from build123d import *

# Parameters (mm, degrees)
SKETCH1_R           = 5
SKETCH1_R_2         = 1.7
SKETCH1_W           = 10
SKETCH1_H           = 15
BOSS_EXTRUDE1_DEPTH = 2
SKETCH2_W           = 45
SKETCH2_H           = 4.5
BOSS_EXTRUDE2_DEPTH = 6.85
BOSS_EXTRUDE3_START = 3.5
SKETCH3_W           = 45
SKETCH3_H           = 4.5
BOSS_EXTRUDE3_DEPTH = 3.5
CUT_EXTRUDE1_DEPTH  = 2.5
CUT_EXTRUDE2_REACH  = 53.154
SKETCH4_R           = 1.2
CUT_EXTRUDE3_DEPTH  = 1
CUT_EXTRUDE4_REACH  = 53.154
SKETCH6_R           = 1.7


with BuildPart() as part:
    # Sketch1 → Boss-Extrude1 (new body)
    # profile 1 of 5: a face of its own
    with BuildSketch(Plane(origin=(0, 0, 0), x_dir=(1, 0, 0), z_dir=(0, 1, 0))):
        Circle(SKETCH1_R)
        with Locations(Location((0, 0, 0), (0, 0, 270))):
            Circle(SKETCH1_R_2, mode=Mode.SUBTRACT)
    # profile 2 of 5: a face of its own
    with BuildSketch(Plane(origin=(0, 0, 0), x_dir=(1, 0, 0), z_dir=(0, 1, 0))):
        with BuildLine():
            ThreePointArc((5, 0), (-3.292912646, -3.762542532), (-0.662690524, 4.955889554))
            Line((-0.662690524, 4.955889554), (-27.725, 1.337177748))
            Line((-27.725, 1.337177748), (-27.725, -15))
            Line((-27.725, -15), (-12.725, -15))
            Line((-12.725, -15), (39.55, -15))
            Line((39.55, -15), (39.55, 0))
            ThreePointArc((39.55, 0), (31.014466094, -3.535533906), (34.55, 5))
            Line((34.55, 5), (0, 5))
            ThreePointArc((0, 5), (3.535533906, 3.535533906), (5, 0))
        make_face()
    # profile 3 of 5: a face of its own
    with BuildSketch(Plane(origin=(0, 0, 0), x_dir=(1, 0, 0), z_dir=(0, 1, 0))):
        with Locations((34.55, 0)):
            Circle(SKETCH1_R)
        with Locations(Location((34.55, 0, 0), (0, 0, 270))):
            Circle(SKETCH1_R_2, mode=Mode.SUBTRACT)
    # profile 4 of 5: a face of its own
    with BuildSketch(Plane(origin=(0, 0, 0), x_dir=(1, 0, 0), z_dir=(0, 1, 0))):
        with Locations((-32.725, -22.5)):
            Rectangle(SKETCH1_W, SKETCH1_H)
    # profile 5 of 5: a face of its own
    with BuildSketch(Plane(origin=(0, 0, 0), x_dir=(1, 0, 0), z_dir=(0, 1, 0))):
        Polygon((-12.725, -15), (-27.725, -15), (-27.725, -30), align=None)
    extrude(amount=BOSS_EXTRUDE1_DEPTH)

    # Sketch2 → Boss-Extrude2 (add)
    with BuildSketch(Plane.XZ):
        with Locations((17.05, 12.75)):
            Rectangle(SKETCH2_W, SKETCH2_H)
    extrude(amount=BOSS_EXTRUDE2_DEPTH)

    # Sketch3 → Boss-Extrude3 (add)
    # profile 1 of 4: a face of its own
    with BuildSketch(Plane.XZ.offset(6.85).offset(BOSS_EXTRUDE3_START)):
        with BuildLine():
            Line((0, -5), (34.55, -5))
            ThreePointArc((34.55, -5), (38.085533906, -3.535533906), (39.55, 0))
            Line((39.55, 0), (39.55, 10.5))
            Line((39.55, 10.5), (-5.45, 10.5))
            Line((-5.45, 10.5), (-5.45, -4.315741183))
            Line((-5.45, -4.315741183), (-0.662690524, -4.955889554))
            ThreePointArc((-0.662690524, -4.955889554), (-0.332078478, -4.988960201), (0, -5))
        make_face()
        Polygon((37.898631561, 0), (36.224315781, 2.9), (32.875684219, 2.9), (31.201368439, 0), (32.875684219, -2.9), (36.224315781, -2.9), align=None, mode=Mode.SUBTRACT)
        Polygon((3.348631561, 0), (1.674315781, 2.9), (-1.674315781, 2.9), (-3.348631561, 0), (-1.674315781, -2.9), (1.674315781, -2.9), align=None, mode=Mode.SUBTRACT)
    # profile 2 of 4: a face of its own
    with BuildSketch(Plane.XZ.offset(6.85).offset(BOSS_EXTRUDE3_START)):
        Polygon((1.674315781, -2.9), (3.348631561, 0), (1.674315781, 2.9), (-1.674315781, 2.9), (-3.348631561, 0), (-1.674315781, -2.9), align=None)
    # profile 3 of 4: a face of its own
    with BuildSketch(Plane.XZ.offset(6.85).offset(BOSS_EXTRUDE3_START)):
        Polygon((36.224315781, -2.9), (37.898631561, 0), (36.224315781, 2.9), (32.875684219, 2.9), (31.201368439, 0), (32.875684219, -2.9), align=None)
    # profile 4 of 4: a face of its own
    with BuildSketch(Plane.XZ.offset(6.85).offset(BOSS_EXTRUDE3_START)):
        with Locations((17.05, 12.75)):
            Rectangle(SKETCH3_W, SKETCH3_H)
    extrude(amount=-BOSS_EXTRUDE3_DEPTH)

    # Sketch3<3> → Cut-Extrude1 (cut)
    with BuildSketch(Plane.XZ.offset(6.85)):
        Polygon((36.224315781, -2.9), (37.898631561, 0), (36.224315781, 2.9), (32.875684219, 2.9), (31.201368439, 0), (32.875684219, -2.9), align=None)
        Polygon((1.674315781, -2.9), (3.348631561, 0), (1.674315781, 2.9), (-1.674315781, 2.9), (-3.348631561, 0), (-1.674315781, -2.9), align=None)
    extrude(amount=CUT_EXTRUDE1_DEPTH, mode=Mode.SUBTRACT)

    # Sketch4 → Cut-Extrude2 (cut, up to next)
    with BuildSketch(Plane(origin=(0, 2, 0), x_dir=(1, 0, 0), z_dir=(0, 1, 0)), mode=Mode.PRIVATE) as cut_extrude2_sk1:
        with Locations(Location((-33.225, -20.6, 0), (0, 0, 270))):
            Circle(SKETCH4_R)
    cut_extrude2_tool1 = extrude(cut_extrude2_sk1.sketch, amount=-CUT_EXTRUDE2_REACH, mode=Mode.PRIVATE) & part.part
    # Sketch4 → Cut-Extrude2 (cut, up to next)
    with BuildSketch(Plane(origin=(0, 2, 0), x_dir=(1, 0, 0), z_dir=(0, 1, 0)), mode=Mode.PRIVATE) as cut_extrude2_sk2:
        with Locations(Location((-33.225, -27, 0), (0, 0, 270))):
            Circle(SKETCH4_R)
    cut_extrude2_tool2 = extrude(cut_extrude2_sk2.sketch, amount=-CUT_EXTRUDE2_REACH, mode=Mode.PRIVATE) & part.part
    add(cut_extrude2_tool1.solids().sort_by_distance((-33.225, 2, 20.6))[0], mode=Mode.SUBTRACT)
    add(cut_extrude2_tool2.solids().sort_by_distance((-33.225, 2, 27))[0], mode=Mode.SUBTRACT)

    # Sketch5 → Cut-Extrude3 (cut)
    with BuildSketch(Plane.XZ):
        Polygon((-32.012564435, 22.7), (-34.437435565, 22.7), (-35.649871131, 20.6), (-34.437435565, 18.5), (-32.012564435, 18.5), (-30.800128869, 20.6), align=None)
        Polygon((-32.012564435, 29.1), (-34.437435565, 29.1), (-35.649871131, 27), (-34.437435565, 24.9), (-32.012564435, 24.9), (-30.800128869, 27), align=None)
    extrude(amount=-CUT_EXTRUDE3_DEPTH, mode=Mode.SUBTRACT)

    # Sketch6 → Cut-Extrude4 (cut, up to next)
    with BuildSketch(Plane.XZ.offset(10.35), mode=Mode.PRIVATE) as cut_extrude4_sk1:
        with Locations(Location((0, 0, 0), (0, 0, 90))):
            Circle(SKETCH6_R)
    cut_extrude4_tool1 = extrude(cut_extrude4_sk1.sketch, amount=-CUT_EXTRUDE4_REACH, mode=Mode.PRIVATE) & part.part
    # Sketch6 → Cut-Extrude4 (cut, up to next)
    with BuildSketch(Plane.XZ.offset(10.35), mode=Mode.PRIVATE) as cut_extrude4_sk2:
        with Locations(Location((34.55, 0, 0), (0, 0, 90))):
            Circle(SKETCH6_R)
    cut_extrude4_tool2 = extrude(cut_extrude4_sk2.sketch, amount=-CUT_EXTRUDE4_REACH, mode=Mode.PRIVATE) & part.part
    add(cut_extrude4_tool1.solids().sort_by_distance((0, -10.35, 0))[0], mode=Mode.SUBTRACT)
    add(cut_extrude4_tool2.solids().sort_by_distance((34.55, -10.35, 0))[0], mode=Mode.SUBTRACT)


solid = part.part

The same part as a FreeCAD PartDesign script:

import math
import FreeCAD as App
import Part
import Sketcher
Q = App.Units.Quantity


def add_polygon(sketch, points):
    """Adds a closed chain of lines whose ends are joined by coincident constraints."""
    first, n = sketch.GeometryCount, len(points)
    for a, b in zip(points, points[1:] + points[:1]):
        sketch.addGeometry(Part.LineSegment(App.Vector(*a, 0), App.Vector(*b, 0)), False)
    for i in range(n):
        sketch.addConstraint(Sketcher.Constraint("Coincident", first + i, 2, first + (i + 1) % n, 1))

doc = App.newDocument("Part")
body = doc.addObject("PartDesign::Body", "Body")

# Sketch on XZ plane
sketch1 = body.newObject("Sketcher::SketchObject", "Sketch")
sketch1.AttachmentSupport = (doc.getObject("XZ_Plane"), [""])
sketch1.MapMode = "FlatFace"
sketch1.addGeometry(Part.ArcOfCircle(Part.Circle(App.Vector(0, 0, 0), App.Vector(0, 0, 1), 5), math.radians(-97.62), math.radians(-90)), False)
sketch1.addGeometry(Part.LineSegment(App.Vector(-0.7, -5, 0), App.Vector(-27.7, -1.3, 0)), False)
sketch1.addGeometry(Part.LineSegment(App.Vector(-27.7, -1.3, 0), App.Vector(-27.7, 15, 0)), False)
sketch1.addGeometry(Part.LineSegment(App.Vector(-27.7, 15, 0), App.Vector(-37.7, 15, 0)), False)
sketch1.addGeometry(Part.LineSegment(App.Vector(-37.7, 15, 0), App.Vector(-37.7, 30, 0)), False)
sketch1.addGeometry(Part.LineSegment(App.Vector(-37.7, 30, 0), App.Vector(-27.7, 30, 0)), False)
sketch1.addGeometry(Part.LineSegment(App.Vector(-27.7, 30, 0), App.Vector(-12.7, 15, 0)), False)
sketch1.addGeometry(Part.LineSegment(App.Vector(-12.7, 15, 0), App.Vector(39.5, 15, 0)), False)
sketch1.addGeometry(Part.LineSegment(App.Vector(39.5, 15, 0), App.Vector(39.5, 0, 0)), False)
sketch1.addGeometry(Part.ArcOfCircle(Part.Circle(App.Vector(34.5, 0, 0), App.Vector(0, 0, 1), 5), math.radians(-90), math.radians(0)), False)
sketch1.addGeometry(Part.LineSegment(App.Vector(34.5, -5, 0), App.Vector(0, -5, 0)), False)
sketch1.addGeometry(Part.Circle(App.Vector(0, 0, 0), App.Vector(0, 0, 1), 1.7), False)
sketch1.addGeometry(Part.Circle(App.Vector(34.5, 0, 0), App.Vector(0, 0, 1), 1.7), False)
sketch1.addConstraint(Sketcher.Constraint("Tangent", 0, 1, 1, 1))
sketch1.addConstraint(Sketcher.Constraint("Coincident", 1, 2, 2, 1))
sketch1.addConstraint(Sketcher.Constraint("Coincident", 2, 2, 3, 1))
sketch1.addConstraint(Sketcher.Constraint("Coincident", 3, 2, 4, 1))
sketch1.addConstraint(Sketcher.Constraint("Coincident", 4, 2, 5, 1))
sketch1.addConstraint(Sketcher.Constraint("Coincident", 5, 2, 6, 1))
sketch1.addConstraint(Sketcher.Constraint("Coincident", 6, 2, 7, 1))
sketch1.addConstraint(Sketcher.Constraint("Coincident", 7, 2, 8, 1))
sketch1.addConstraint(Sketcher.Constraint("Tangent", 8, 2, 9, 2))
sketch1.addConstraint(Sketcher.Constraint("Tangent", 9, 1, 10, 1))
sketch1.addConstraint(Sketcher.Constraint("Tangent", 10, 2, 0, 2))
sketch1.addConstraint(Sketcher.Constraint("Vertical", 2))
sketch1.addConstraint(Sketcher.Constraint("Horizontal", 3))
sketch1.addConstraint(Sketcher.Constraint("Vertical", 4))
sketch1.addConstraint(Sketcher.Constraint("Horizontal", 5))
sketch1.addConstraint(Sketcher.Constraint("Horizontal", 7))
sketch1.addConstraint(Sketcher.Constraint("Vertical", 8))
sketch1.addConstraint(Sketcher.Constraint("Horizontal", 10))
sketch1.addConstraint(Sketcher.Constraint("Coincident", 0, 3, -1, 1))
sketch1.addConstraint(Sketcher.Constraint("Coincident", 11, 3, -1, 1))
sketch1.addConstraint(Sketcher.Constraint("Coincident", 12, 3, 9, 3))
sketch1.addConstraint(Sketcher.Constraint("Equal", 0, 9))
sketch1.addConstraint(Sketcher.Constraint("Equal", 11, 12))
sketch1.addConstraint(Sketcher.Constraint("Horizontal", 3, 2, 6, 2))
sketch1.addConstraint(Sketcher.Constraint("Vertical", 2, 2, 5, 2))
sketch1.addConstraint(Sketcher.Constraint("Equal", 4, 8))
sketch1.addConstraint(Sketcher.Constraint("Radius", 0, Q("5 mm")))
sketch1.addConstraint(Sketcher.Constraint("Diameter", 11, Q("3.4 mm")))
sketch1.addConstraint(Sketcher.Constraint("DistanceX", 3, 2, 3, 1, Q("10 mm")))
sketch1.addConstraint(Sketcher.Constraint("DistanceY", 4, 1, 4, 2, Q("15 mm")))
sketch1.addConstraint(Sketcher.Constraint("Angle", 6, Q("-45 deg")))
sketch1.addConstraint(Sketcher.Constraint("DistanceX", 10, 2, 10, 1, Q("34.55 mm")))
sketch1.addConstraint(Sketcher.Constraint("DistanceX", 7, 1, 7, 2, Q("52.275 mm")))
sketch1.addConstraint(Sketcher.Constraint("Distance", 1, Q("27.303181 mm")))
pad1 = body.newObject("PartDesign::Pad", "Pad")
pad1.Profile = sketch1
pad1.Length = 2
pad1.Reversed = True

# Sketch on XZ plane
sketch2 = body.newObject("Sketcher::SketchObject", "Sketch001")
sketch2.AttachmentSupport = (doc.getObject("XZ_Plane"), [""])
sketch2.MapMode = "FlatFace"
add_polygon(sketch2, [(-5.5, 15), (-5.5, 10.5), (39.5, 10.5), (39.5, 15)])  # lines 0-3
sketch2.addConstraint(Sketcher.Constraint("Vertical", 0))
sketch2.addConstraint(Sketcher.Constraint("Horizontal", 1))
sketch2.addConstraint(Sketcher.Constraint("Vertical", 2))
sketch2.addConstraint(Sketcher.Constraint("Horizontal", 3))
sketch2.addConstraint(Sketcher.Constraint("DistanceX", 1, 1, 1, 2, Q("45 mm")))
sketch2.addConstraint(Sketcher.Constraint("DistanceY", 0, 2, 0, 1, Q("4.5 mm")))
sketch2.addConstraint(Sketcher.Constraint("DistanceY", -1, 1, 2, 2, Q("15 mm")))
sketch2.addConstraint(Sketcher.Constraint("DistanceX", 0, 2, -1, 1, Q("5.45 mm")))
pad2 = body.newObject("PartDesign::Pad", "Pad001")
pad2.Profile = sketch2
pad2.Length = 6.85

# Sketch on XZ plane
sketch3 = body.newObject("Sketcher::SketchObject", "Sketch002")
sketch3.AttachmentSupport = (doc.getObject("XZ_Plane"), [""])
sketch3.MapMode = "FlatFace"
sketch3.AttachmentOffset = App.Placement(App.Vector(0, 0, 10.35), App.Rotation())
sketch3.addGeometry(Part.LineSegment(App.Vector(0, -5, 0), App.Vector(34.5, -5, 0)), False)
sketch3.addGeometry(Part.ArcOfCircle(Part.Circle(App.Vector(34.5, 0, 0), App.Vector(0, 0, 1), 5), math.radians(-90), math.radians(0)), False)
sketch3.addGeometry(Part.LineSegment(App.Vector(39.5, 0, 0), App.Vector(39.5, 15, 0)), False)
sketch3.addGeometry(Part.LineSegment(App.Vector(39.5, 15, 0), App.Vector(-5.5, 15, 0)), False)
sketch3.addGeometry(Part.LineSegment(App.Vector(-5.5, 15, 0), App.Vector(-5.5, -4.3, 0)), False)
sketch3.addGeometry(Part.LineSegment(App.Vector(-5.5, -4.3, 0), App.Vector(-0.7, -5, 0)), False)
sketch3.addGeometry(Part.ArcOfCircle(Part.Circle(App.Vector(0, 0, 0), App.Vector(0, 0, 1), 5), math.radians(-97.62), math.radians(-90)), False)
sketch3.addConstraint(Sketcher.Constraint("Tangent", 0, 2, 1, 1))
sketch3.addConstraint(Sketcher.Constraint("Tangent", 1, 2, 2, 1))
sketch3.addConstraint(Sketcher.Constraint("Coincident", 2, 2, 3, 1))
sketch3.addConstraint(Sketcher.Constraint("Coincident", 3, 2, 4, 1))
sketch3.addConstraint(Sketcher.Constraint("Coincident", 4, 2, 5, 1))
sketch3.addConstraint(Sketcher.Constraint("Tangent", 5, 2, 6, 1))
sketch3.addConstraint(Sketcher.Constraint("Tangent", 6, 2, 0, 1))
sketch3.addConstraint(Sketcher.Constraint("Horizontal", 0))
sketch3.addConstraint(Sketcher.Constraint("Vertical", 2))
sketch3.addConstraint(Sketcher.Constraint("Horizontal", 3))
sketch3.addConstraint(Sketcher.Constraint("Vertical", 4))
sketch3.addConstraint(Sketcher.Constraint("Coincident", 6, 3, -1, 1))
sketch3.addConstraint(Sketcher.Constraint("Equal", 1, 6))
sketch3.addConstraint(Sketcher.Constraint("Radius", 1, Q("5 mm")))
sketch3.addConstraint(Sketcher.Constraint("DistanceX", 3, 2, 3, 1, Q("45 mm")))
sketch3.addConstraint(Sketcher.Constraint("DistanceY", 2, 1, 2, 2, Q("15 mm")))
sketch3.addConstraint(Sketcher.Constraint("DistanceX", 0, 1, 0, 2, Q("34.55 mm")))
sketch3.addConstraint(Sketcher.Constraint("DistanceY", 4, 2, 4, 1, Q("19.315741 mm")))
pad3 = body.newObject("PartDesign::Pad", "Pad002")
pad3.Profile = sketch3
pad3.Length = 3.5
pad3.Reversed = True

# Sketch on XZ plane
sketch4 = body.newObject("Sketcher::SketchObject", "Sketch003")
sketch4.AttachmentSupport = (doc.getObject("XZ_Plane"), [""])
sketch4.MapMode = "FlatFace"
sketch4.AttachmentOffset = App.Placement(App.Vector(0, 0, 6.85), App.Rotation())
add_polygon(sketch4, [(36.2, -2.9), (37.9, 0), (36.2, 2.9), (32.9, 2.9), (31.2, 0), (32.9, -2.9)])  # lines 0-5
add_polygon(sketch4, [(1.7, -2.9), (3.3, 0), (1.7, 2.9), (-1.7, 2.9), (-3.3, 0), (-1.7, -2.9)])  # lines 6-11
sketch4.addConstraint(Sketcher.Constraint("Horizontal", 2))
sketch4.addConstraint(Sketcher.Constraint("Horizontal", 5))
sketch4.addConstraint(Sketcher.Constraint("Horizontal", 8))
sketch4.addConstraint(Sketcher.Constraint("Horizontal", 11))
sketch4.addConstraint(Sketcher.Constraint("Symmetric", 6, 2, 9, 2, -1, 1))
sketch4.addConstraint(Sketcher.Constraint("Symmetric", 7, 2, 10, 2, -1, 1))
sketch4.addConstraint(Sketcher.Constraint("Symmetric", 2, 2, 4, 2, -1))
sketch4.addConstraint(Sketcher.Constraint("PointOnObject", 0, 2, -1))
sketch4.addConstraint(Sketcher.Constraint("PointOnObject", 3, 2, -1))
sketch4.addConstraint(Sketcher.Constraint("PointOnObject", 6, 2, -1))
sketch4.addConstraint(Sketcher.Constraint("Parallel", 0, 3))
sketch4.addConstraint(Sketcher.Constraint("Parallel", 1, 4))
sketch4.addConstraint(Sketcher.Constraint("Parallel", 3, 6))
sketch4.addConstraint(Sketcher.Constraint("Parallel", 4, 7))
sketch4.addConstraint(Sketcher.Constraint("Parallel", 6, 9))
sketch4.addConstraint(Sketcher.Constraint("Horizontal", 2, 2, 7, 2))
sketch4.addConstraint(Sketcher.Constraint("Equal", 5, 8))
sketch4.addConstraint(Sketcher.Constraint("Angle", 0, Q("60 deg")))
sketch4.addConstraint(Sketcher.Constraint("DistanceY", -1, 1, 1, 2, Q("2.9 mm")))
sketch4.addConstraint(Sketcher.Constraint("DistanceX", 7, 2, 1, 2, Q("34.55 mm")))
sketch4.addConstraint(Sketcher.Constraint("DistanceX", 2, 2, 2, 1, Q("3.348632 mm")))
pocket1 = body.newObject("PartDesign::Pocket", "Pocket")
pocket1.Profile = sketch4
pocket1.Length = 2.5
pocket1.Reversed = True

# Sketch on XZ plane
sketch5 = body.newObject("Sketcher::SketchObject", "Sketch004")
sketch5.AttachmentSupport = (doc.getObject("XZ_Plane"), [""])
sketch5.MapMode = "FlatFace"
sketch5.AttachmentOffset = App.Placement(App.Vector(0, 0, -2), App.Rotation())
sketch5.addGeometry(Part.Circle(App.Vector(-33.2, 20.6, 0), App.Vector(0, 0, 1), 1.2), False)
sketch5.addConstraint(Sketcher.Constraint("Diameter", 0, Q("2.4 mm")))
sketch5.addConstraint(Sketcher.Constraint("DistanceY", -1, 1, 0, 3, Q("20.6 mm")))
sketch5.addConstraint(Sketcher.Constraint("DistanceX", 0, 3, -1, 1, Q("33.225 mm")))
pocket2 = body.newObject("PartDesign::Pocket", "Pocket001")
pocket2.Profile = sketch5
pocket2.Type = "UpToFirst"
pocket2.Reversed = True

# Sketch on XZ plane
sketch6 = body.newObject("Sketcher::SketchObject", "Sketch005")
sketch6.AttachmentSupport = (doc.getObject("XZ_Plane"), [""])
sketch6.MapMode = "FlatFace"
sketch6.AttachmentOffset = App.Placement(App.Vector(0, 0, -2), App.Rotation())
sketch6.addGeometry(Part.Circle(App.Vector(-33.2, 27, 0), App.Vector(0, 0, 1), 1.2), False)
sketch6.addConstraint(Sketcher.Constraint("Diameter", 0, Q("2.4 mm")))
sketch6.addConstraint(Sketcher.Constraint("DistanceY", -1, 1, 0, 3, Q("27 mm")))
sketch6.addConstraint(Sketcher.Constraint("DistanceX", 0, 3, -1, 1, Q("33.225 mm")))
pocket3 = body.newObject("PartDesign::Pocket", "Pocket002")
pocket3.Profile = sketch6
pocket3.Type = "UpToFirst"
pocket3.Reversed = True

# Sketch on XZ plane
sketch7 = body.newObject("Sketcher::SketchObject", "Sketch006")
sketch7.AttachmentSupport = (doc.getObject("XZ_Plane"), [""])
sketch7.MapMode = "FlatFace"
add_polygon(sketch7, [(-32, 22.7), (-34.4, 22.7), (-35.6, 20.6), (-34.4, 18.5), (-32, 18.5), (-30.8, 20.6)])  # lines 0-5
add_polygon(sketch7, [(-32, 29.1), (-34.4, 29.1), (-35.6, 27), (-34.4, 24.9), (-32, 24.9), (-30.8, 27)])  # lines 6-11
sketch7.addConstraint(Sketcher.Constraint("Horizontal", 0))
sketch7.addConstraint(Sketcher.Constraint("Horizontal", 3))
sketch7.addConstraint(Sketcher.Constraint("Horizontal", 6))
sketch7.addConstraint(Sketcher.Constraint("Horizontal", 9))
sketch7.addConstraint(Sketcher.Constraint("Parallel", 1, 4))
sketch7.addConstraint(Sketcher.Constraint("Parallel", 2, 5))
sketch7.addConstraint(Sketcher.Constraint("Parallel", 4, 7))
sketch7.addConstraint(Sketcher.Constraint("Parallel", 5, 8))
sketch7.addConstraint(Sketcher.Constraint("Parallel", 7, 10))
sketch7.addConstraint(Sketcher.Constraint("Parallel", 8, 11))
sketch7.addConstraint(Sketcher.Constraint("Horizontal", 1, 2, 4, 2))
sketch7.addConstraint(Sketcher.Constraint("Horizontal", 7, 2, 10, 2))
sketch7.addConstraint(Sketcher.Constraint("Vertical", 0, 2, 2, 2))
sketch7.addConstraint(Sketcher.Constraint("Vertical", 3, 2, 5, 2))
sketch7.addConstraint(Sketcher.Constraint("Vertical", 2, 2, 6, 2))
sketch7.addConstraint(Sketcher.Constraint("Vertical", 1, 2, 7, 2))
sketch7.addConstraint(Sketcher.Constraint("Vertical", 6, 2, 8, 2))
sketch7.addConstraint(Sketcher.Constraint("Vertical", 5, 2, 9, 2))
sketch7.addConstraint(Sketcher.Constraint("Angle", 1, Q("-120 deg")))
sketch7.addConstraint(Sketcher.Constraint("DistanceY", -1, 1, 7, 2, Q("27 mm")))
sketch7.addConstraint(Sketcher.Constraint("DistanceY", -1, 1, 0, 2, Q("22.7 mm")))
sketch7.addConstraint(Sketcher.Constraint("DistanceY", -1, 1, 1, 2, Q("20.6 mm")))
sketch7.addConstraint(Sketcher.Constraint("DistanceX", 0, 2, 0, 1, Q("2.424871 mm")))
sketch7.addConstraint(Sketcher.Constraint("DistanceX", 1, 2, -1, 1, Q("35.649871 mm")))
pocket4 = body.newObject("PartDesign::Pocket", "Pocket003")
pocket4.Profile = sketch7
pocket4.Length = 1

# Sketch on XZ plane
sketch8 = body.newObject("Sketcher::SketchObject", "Sketch007")
sketch8.AttachmentSupport = (doc.getObject("XZ_Plane"), [""])
sketch8.MapMode = "FlatFace"
sketch8.AttachmentOffset = App.Placement(App.Vector(0, 0, 10.35), App.Rotation())
sketch8.addGeometry(Part.Circle(App.Vector(0, 0, 0), App.Vector(0, 0, 1), 1.7), False)
sketch8.addConstraint(Sketcher.Constraint("Coincident", 0, 3, -1, 1))
sketch8.addConstraint(Sketcher.Constraint("Diameter", 0, Q("3.4 mm")))
pocket5 = body.newObject("PartDesign::Pocket", "Pocket004")
pocket5.Profile = sketch8
pocket5.Type = "UpToFirst"

# Sketch on XZ plane
sketch9 = body.newObject("Sketcher::SketchObject", "Sketch008")
sketch9.AttachmentSupport = (doc.getObject("XZ_Plane"), [""])
sketch9.MapMode = "FlatFace"
sketch9.AttachmentOffset = App.Placement(App.Vector(0, 0, 10.35), App.Rotation())
sketch9.addGeometry(Part.Circle(App.Vector(34.5, 0, 0), App.Vector(0, 0, 1), 1.7), False)
sketch9.addConstraint(Sketcher.Constraint("PointOnObject", 0, 3, -1))
sketch9.addConstraint(Sketcher.Constraint("Diameter", 0, Q("3.4 mm")))
sketch9.addConstraint(Sketcher.Constraint("DistanceX", -1, 1, 0, 3, Q("34.55 mm")))
pocket6 = body.newObject("PartDesign::Pocket", "Pocket005")
pocket6.Profile = sketch9
pocket6.Type = "UpToFirst"

doc.recompute()
